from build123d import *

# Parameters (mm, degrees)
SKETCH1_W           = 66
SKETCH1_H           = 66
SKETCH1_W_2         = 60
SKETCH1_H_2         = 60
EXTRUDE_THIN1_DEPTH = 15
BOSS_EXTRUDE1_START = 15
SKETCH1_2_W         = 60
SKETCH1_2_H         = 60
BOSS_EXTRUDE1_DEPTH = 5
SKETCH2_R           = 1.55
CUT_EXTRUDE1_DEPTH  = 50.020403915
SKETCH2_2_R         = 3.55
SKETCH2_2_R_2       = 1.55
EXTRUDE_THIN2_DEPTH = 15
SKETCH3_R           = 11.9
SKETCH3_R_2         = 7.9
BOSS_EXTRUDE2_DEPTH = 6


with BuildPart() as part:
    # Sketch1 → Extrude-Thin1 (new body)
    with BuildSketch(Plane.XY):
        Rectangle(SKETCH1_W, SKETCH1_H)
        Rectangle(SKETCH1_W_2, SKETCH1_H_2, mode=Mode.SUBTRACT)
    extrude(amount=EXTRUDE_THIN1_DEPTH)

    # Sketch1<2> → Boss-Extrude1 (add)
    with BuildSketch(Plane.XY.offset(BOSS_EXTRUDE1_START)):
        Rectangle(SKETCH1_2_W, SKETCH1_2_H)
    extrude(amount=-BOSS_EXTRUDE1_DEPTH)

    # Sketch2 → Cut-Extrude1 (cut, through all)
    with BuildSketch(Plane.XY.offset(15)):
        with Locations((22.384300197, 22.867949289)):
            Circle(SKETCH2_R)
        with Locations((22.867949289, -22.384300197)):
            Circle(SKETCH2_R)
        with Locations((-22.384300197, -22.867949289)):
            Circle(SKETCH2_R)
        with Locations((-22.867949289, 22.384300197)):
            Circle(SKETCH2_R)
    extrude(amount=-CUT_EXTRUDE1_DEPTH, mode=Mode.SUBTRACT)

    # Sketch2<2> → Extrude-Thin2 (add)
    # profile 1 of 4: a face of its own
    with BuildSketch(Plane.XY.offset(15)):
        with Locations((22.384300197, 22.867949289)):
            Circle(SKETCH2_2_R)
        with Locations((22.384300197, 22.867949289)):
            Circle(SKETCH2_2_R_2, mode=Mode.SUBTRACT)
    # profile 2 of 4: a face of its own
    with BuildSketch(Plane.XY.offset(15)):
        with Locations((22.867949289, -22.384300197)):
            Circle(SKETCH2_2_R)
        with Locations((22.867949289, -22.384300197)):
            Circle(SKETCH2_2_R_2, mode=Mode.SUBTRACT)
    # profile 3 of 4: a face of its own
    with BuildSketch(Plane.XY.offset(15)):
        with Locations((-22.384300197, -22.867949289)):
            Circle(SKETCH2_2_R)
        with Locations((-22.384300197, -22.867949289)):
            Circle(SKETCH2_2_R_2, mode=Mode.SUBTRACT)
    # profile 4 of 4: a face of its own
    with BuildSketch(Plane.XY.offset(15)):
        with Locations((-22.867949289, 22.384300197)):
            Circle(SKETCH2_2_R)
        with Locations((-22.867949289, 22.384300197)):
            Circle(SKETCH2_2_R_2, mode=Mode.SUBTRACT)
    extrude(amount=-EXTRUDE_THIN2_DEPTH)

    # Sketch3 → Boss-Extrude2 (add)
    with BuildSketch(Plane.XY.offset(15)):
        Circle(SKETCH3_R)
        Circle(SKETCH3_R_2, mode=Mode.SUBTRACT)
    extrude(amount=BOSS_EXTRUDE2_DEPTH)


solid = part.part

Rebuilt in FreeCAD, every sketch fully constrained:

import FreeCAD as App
import Part
import Sketcher

V = App.Vector


def add_polygon(sketch, points):
    """Adds a closed chain of lines whose ends are joined by coincident constraints."""
    first, n = sketch.GeometryCount, len(points)
    for a, b in zip(points, points[1:] + points[:1]):
        sketch.addGeometry(Part.LineSegment(App.Vector(*a, 0), App.Vector(*b, 0)), False)
    for i in range(n):
        sketch.addConstraint(Sketcher.Constraint("Coincident", first + i, 2, first + (i + 1) % n, 1))

doc = App.newDocument("Part")
body = doc.addObject("PartDesign::Body", "Body")

# Sketch on XY plane
sketch1 = body.newObject("Sketcher::SketchObject", "Sketch")
sketch1.AttachmentSupport = (doc.getObject("XY_Plane"), [""])
sketch1.MapMode = "FlatFace"
add_polygon(sketch1, [(-33, 33), (-33, -33), (33, -33), (33, 33)])  # lines 0-3
add_polygon(sketch1, [(30, -30), (-30, -30), (-30, 30), (30, 30)])  # lines 4-7
sketch1.addConstraint(Sketcher.Constraint("Vertical", 0))
sketch1.addConstraint(Sketcher.Constraint("Horizontal", 1))
sketch1.addConstraint(Sketcher.Constraint("Vertical", 2))
sketch1.addConstraint(Sketcher.Constraint("Horizontal", 3))
sketch1.addConstraint(Sketcher.Constraint("Horizontal", 4))
sketch1.addConstraint(Sketcher.Constraint("Vertical", 5))
sketch1.addConstraint(Sketcher.Constraint("Horizontal", 6))
sketch1.addConstraint(Sketcher.Constraint("Vertical", 7))
sketch1.addConstraint(Sketcher.Constraint("Symmetric", 0, 2, 2, 2, -1, 1))
sketch1.addConstraint(Sketcher.Constraint("Symmetric", 4, 2, 6, 2, -1, 1))
sketch1.addConstraint(Sketcher.Constraint("Equal", 3, 0))
sketch1.addConstraint(Sketcher.Constraint("Equal", 6, 5))
sketch1.addConstraint(Sketcher.Constraint("DistanceX", 1, 1, 1, 2, 66.0))
sketch1.addConstraint(Sketcher.Constraint("DistanceX", 4, 2, 4, 1, 60.0))
pad1 = body.newObject("PartDesign::Pad", "Pad")
pad1.Profile = sketch1
pad1.Length = 15

# Sketch on XY plane
sketch2 = body.newObject("Sketcher::SketchObject", "Sketch001")
sketch2.AttachmentSupport = (doc.getObject("XY_Plane"), [""])
sketch2.MapMode = "FlatFace"
sketch2.AttachmentOffset = App.Placement(V(0, 0, 15), App.Rotation())
add_polygon(sketch2, [(-30, 30), (-30, -30), (30, -30), (30, 30)])  # lines 0-3
sketch2.addConstraint(Sketcher.Constraint("Vertical", 0))
sketch2.addConstraint(Sketcher.Constraint("Horizontal", 1))
sketch2.addConstraint(Sketcher.Constraint("Vertical", 2))
sketch2.addConstraint(Sketcher.Constraint("Horizontal", 3))
sketch2.addConstraint(Sketcher.Constraint("Symmetric", 0, 2, 2, 2, -1, 1))
sketch2.addConstraint(Sketcher.Constraint("Equal", 3, 0))
sketch2.addConstraint(Sketcher.Constraint("DistanceX", 1, 1, 1, 2, 60.0))
pad2 = body.newObject("PartDesign::Pad", "Pad001")
pad2.Profile = sketch2
pad2.Length = 5
pad2.Reversed = True

# Sketch on XY plane
sketch3 = body.newObject("Sketcher::SketchObject", "Sketch002")
sketch3.AttachmentSupport = (doc.getObject("XY_Plane"), [""])
sketch3.MapMode = "FlatFace"
sketch3.AttachmentOffset = App.Placement(V(0, 0, 15), App.Rotation())
sketch3.addGeometry(Part.Circle(V(22.4, 22.9, 0), V(0, 0, 1), 1.6), False)
sketch3.addGeometry(Part.Circle(V(22.9, -22.4, 0), V(0, 0, 1), 1.6), False)
sketch3.addGeometry(Part.Circle(V(-22.4, -22.9, 0), V(0, 0, 1), 1.6), False)
sketch3.addGeometry(Part.Circle(V(-22.9, 22.4, 0), V(0, 0, 1), 1.6), False)
sketch3.addConstraint(Sketcher.Constraint("Equal", 0, 1))
sketch3.addConstraint(Sketcher.Constraint("Equal", 1, 2))
sketch3.addConstraint(Sketcher.Constraint("Equal", 2, 3))
sketch3.addConstraint(Sketcher.Constraint("Symmetric", 0, 3, 2, 3, -1, 1))
sketch3.addConstraint(Sketcher.Constraint("Symmetric", 1, 3, 3, 3, -1, 1))
sketch3.addConstraint(Sketcher.Constraint("Diameter", 0, 3.1))
sketch3.addConstraint(Sketcher.Constraint("DistanceX", -1, 1, 0, 3, 22.3843))
sketch3.addConstraint(Sketcher.Constraint("DistanceY", 1, 3, -1, 1, 22.3843))
sketch3.addConstraint(Sketcher.Constraint("DistanceY", 2, 3, 0, 3, 45.735899))
sketch3.addConstraint(Sketcher.Constraint("DistanceX", 3, 3, 1, 3, 45.735899))
pocket1 = body.newObject("PartDesign::Pocket", "Pocket")
pocket1.Profile = sketch3
pocket1.Type = "ThroughAll"

# Sketch on XY plane
sketch4 = body.newObject("Sketcher::SketchObject", "Sketch003")
sketch4.AttachmentSupport = (doc.getObject("XY_Plane"), [""])
sketch4.MapMode = "FlatFace"
sketch4.AttachmentOffset = App.Placement(V(0, 0, 15), App.Rotation())
sketch4.addGeometry(Part.Circle(V(22.4, 22.9, 0), V(0, 0, 1), 3.5), False)
sketch4.addGeometry(Part.Circle(V(22.4, 22.9, 0), V(0, 0, 1), 1.6), False)
sketch4.addGeometry(Part.Circle(V(22.9, -22.4, 0), V(0, 0, 1), 3.5), False)
sketch4.addGeometry(Part.Circle(V(22.9, -22.4, 0), V(0, 0, 1), 1.6), False)
sketch4.addGeometry(Part.Circle(V(-22.4, -22.9, 0), V(0, 0, 1), 3.5), False)
sketch4.addGeometry(Part.Circle(V(-22.4, -22.9, 0), V(0, 0, 1), 1.6), False)
sketch4.addGeometry(Part.Circle(V(-22.9, 22.4, 0), V(0, 0, 1), 3.5), False)
sketch4.addGeometry(Part.Circle(V(-22.9, 22.4, 0), V(0, 0, 1), 1.6), False)
sketch4.addConstraint(Sketcher.Constraint("Coincident", 1, 3, 0, 3))
sketch4.addConstraint(Sketcher.Constraint("Coincident", 3, 3, 2, 3))
sketch4.addConstraint(Sketcher.Constraint("Coincident", 5, 3, 4, 3))
sketch4.addConstraint(Sketcher.Constraint("Coincident", 7, 3, 6, 3))
sketch4.addConstraint(Sketcher.Constraint("Equal", 0, 2))
sketch4.addConstraint(Sketcher.Constraint("Equal", 1, 3))
sketch4.addConstraint(Sketcher.Constraint("Equal", 2, 4))
sketch4.addConstraint(Sketcher.Constraint("Equal", 3, 5))
sketch4.addConstraint(Sketcher.Constraint("Equal", 4, 6))
sketch4.addConstraint(Sketcher.Constraint("Equal", 5, 7))
sketch4.addConstraint(Sketcher.Constraint("Symmetric", 0, 3, 4, 3, -1, 1))
sketch4.addConstraint(Sketcher.Constraint("Symmetric", 2, 3, 6, 3, -1, 1))
sketch4.addConstraint(Sketcher.Constraint("Diameter", 0, 7.1))
sketch4.addConstraint(Sketcher.Constraint("Diameter", 1, 3.1))
sketch4.addConstraint(Sketcher.Constraint("DistanceX", -1, 1, 0, 3, 22.3843))
sketch4.addConstraint(Sketcher.Constraint("DistanceY", 2, 3, -1, 1, 22.3843))
sketch4.addConstraint(Sketcher.Constraint("DistanceY", 4, 3, 0, 3, 45.735899))
sketch4.addConstraint(Sketcher.Constraint("DistanceX", 6, 3, 2, 3, 45.735899))
pad3 = body.newObject("PartDesign::Pad", "Pad002")
pad3.Profile = sketch4
pad3.Length = 15
pad3.Reversed = True

# Sketch on XY plane
sketch5 = body.newObject("Sketcher::SketchObject", "Sketch004")
sketch5.AttachmentSupport = (doc.getObject("XY_Plane"), [""])
sketch5.MapMode = "FlatFace"
sketch5.AttachmentOffset = App.Placement(V(0, 0, 15), App.Rotation())
sketch5.addGeometry(Part.Circle(V(0, 0, 0), V(0, 0, 1), 12), False)
sketch5.addGeometry(Part.Circle(V(0, 0, 0), V(0, 0, 1), 8), False)
sketch5.addConstraint(Sketcher.Constraint("Coincident", 0, 3, -1, 1))
sketch5.addConstraint(Sketcher.Constraint("Coincident", 1, 3, -1, 1))
sketch5.addConstraint(Sketcher.Constraint("Diameter", 0, 23.8))
sketch5.addConstraint(Sketcher.Constraint("Diameter", 1, 15.8))
pad4 = body.newObject("PartDesign::Pad", "Pad003")
pad4.Profile = sketch5
pad4.Length = 6

doc.recompute()
